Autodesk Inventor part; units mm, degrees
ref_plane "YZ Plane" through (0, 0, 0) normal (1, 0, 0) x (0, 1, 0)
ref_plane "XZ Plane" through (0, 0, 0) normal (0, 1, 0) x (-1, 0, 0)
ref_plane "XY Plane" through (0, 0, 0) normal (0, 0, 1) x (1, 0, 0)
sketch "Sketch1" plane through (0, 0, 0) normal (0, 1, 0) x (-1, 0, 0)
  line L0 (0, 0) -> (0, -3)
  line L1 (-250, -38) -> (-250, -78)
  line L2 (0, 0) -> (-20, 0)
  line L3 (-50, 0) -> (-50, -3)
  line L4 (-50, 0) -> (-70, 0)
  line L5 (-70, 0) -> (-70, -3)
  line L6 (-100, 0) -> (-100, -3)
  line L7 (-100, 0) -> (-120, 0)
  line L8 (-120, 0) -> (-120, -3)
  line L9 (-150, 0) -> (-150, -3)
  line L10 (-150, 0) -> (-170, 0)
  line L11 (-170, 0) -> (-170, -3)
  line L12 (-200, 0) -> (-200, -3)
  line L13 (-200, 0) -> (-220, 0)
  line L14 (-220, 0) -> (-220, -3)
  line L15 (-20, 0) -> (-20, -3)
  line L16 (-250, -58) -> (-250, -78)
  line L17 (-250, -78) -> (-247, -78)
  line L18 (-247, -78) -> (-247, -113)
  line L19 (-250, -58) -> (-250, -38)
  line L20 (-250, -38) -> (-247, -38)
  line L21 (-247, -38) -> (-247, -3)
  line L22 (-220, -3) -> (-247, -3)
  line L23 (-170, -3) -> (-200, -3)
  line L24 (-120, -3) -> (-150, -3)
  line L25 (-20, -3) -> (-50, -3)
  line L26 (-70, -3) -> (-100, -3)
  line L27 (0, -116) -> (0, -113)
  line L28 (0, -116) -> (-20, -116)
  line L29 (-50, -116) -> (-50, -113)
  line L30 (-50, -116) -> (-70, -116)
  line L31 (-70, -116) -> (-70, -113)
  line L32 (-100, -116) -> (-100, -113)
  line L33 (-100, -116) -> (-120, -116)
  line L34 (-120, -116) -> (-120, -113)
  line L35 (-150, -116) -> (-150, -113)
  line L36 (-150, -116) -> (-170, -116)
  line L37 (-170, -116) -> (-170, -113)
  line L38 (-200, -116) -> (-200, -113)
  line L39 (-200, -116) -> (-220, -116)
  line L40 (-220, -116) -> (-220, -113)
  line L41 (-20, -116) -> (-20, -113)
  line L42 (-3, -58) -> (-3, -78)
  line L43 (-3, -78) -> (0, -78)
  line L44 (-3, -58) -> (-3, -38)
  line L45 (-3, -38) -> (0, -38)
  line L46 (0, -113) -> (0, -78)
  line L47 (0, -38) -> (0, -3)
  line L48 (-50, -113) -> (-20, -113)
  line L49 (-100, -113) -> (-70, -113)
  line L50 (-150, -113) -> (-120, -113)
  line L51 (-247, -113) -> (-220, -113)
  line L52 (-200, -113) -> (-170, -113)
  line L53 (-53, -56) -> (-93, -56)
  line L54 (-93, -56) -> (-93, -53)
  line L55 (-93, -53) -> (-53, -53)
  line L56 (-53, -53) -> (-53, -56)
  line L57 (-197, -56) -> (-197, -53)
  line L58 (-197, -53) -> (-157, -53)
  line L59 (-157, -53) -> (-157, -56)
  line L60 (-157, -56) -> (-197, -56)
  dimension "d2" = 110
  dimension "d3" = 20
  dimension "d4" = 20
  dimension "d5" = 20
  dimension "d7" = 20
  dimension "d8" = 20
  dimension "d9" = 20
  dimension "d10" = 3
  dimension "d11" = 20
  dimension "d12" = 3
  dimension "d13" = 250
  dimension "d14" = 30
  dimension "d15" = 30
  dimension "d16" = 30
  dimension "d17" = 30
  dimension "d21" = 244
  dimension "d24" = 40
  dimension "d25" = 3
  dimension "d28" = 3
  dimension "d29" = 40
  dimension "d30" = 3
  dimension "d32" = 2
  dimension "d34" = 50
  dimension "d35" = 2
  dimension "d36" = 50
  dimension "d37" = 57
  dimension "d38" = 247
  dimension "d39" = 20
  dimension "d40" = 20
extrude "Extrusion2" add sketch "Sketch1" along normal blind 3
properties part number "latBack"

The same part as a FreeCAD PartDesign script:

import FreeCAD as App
import Part
import Sketcher
from FreeCAD import Vector

doc = App.newDocument("Part")
body = doc.addObject("PartDesign::Body", "Body")

sketch1 = body.newObject("Sketcher::SketchObject", "Sketch")
sketch1.AttachmentSupport = (doc.getObject("XZ_Plane"), [""])
sketch1.MapMode = "FlatFace"
sketch1.addGeometry(Part.LineSegment(Vector(0, -38, 0), Vector(0, 0, 0)), False)
sketch1.addGeometry(Part.LineSegment(Vector(0, 0, 0), Vector(20, 0, 0)), False)
sketch1.addGeometry(Part.LineSegment(Vector(20, 0, 0), Vector(20, -3, 0)), False)
sketch1.addGeometry(Part.LineSegment(Vector(20, -3, 0), Vector(50, -3, 0)), False)
sketch1.addGeometry(Part.LineSegment(Vector(50, -3, 0), Vector(50, 0, 0)), False)
sketch1.addGeometry(Part.LineSegment(Vector(50, 0, 0), Vector(70, 0, 0)), False)
sketch1.addGeometry(Part.LineSegment(Vector(70, 0, 0), Vector(70, -3, 0)), False)
sketch1.addGeometry(Part.LineSegment(Vector(70, -3, 0), Vector(100, -3, 0)), False)
sketch1.addGeometry(Part.LineSegment(Vector(100, -3, 0), Vector(100, 0, 0)), False)
sketch1.addGeometry(Part.LineSegment(Vector(100, 0, 0), Vector(120, 0, 0)), False)
sketch1.addGeometry(Part.LineSegment(Vector(120, 0, 0), Vector(120, -3, 0)), False)
sketch1.addGeometry(Part.LineSegment(Vector(120, -3, 0), Vector(150, -3, 0)), False)
sketch1.addGeometry(Part.LineSegment(Vector(150, -3, 0), Vector(150, 0, 0)), False)
sketch1.addGeometry(Part.LineSegment(Vector(150, 0, 0), Vector(170, 0, 0)), False)
sketch1.addGeometry(Part.LineSegment(Vector(170, 0, 0), Vector(170, -3, 0)), False)
sketch1.addGeometry(Part.LineSegment(Vector(170, -3, 0), Vector(200, -3, 0)), False)
sketch1.addGeometry(Part.LineSegment(Vector(200, -3, 0), Vector(200, 0, 0)), False)
sketch1.addGeometry(Part.LineSegment(Vector(200, 0, 0), Vector(220, 0, 0)), False)
sketch1.addGeometry(Part.LineSegment(Vector(220, 0, 0), Vector(220, -3, 0)), False)
sketch1.addGeometry(Part.LineSegment(Vector(220, -3, 0), Vector(247, -3, 0)), False)
sketch1.addGeometry(Part.LineSegment(Vector(247, -3, 0), Vector(247, -38, 0)), False)
sketch1.addGeometry(Part.LineSegment(Vector(247, -38, 0), Vector(250, -38, 0)), False)
sketch1.addGeometry(Part.LineSegment(Vector(250, -38, 0), Vector(250, -78, 0)), False)
sketch1.addGeometry(Part.LineSegment(Vector(250, -78, 0), Vector(247, -78, 0)), False)
sketch1.addGeometry(Part.LineSegment(Vector(247, -78, 0), Vector(247, -113, 0)), False)
sketch1.addGeometry(Part.LineSegment(Vector(247, -113, 0), Vector(220, -113, 0)), False)
sketch1.addGeometry(Part.LineSegment(Vector(220, -113, 0), Vector(220, -116, 0)), False)
sketch1.addGeometry(Part.LineSegment(Vector(220, -116, 0), Vector(200, -116, 0)), False)
sketch1.addGeometry(Part.LineSegment(Vector(200, -116, 0), Vector(200, -113, 0)), False)
sketch1.addGeometry(Part.LineSegment(Vector(200, -113, 0), Vector(170, -113, 0)), False)
sketch1.addGeometry(Part.LineSegment(Vector(170, -113, 0), Vector(170, -116, 0)), False)
sketch1.addGeometry(Part.LineSegment(Vector(170, -116, 0), Vector(150, -116, 0)), False)
sketch1.addGeometry(Part.LineSegment(Vector(150, -116, 0), Vector(150, -113, 0)), False)
sketch1.addGeometry(Part.LineSegment(Vector(150, -113, 0), Vector(120, -113, 0)), False)
sketch1.addGeometry(Part.LineSegment(Vector(120, -113, 0), Vector(120, -116, 0)), False)
sketch1.addGeometry(Part.LineSegment(Vector(120, -116, 0), Vector(100, -116, 0)), False)
sketch1.addGeometry(Part.LineSegment(Vector(100, -116, 0), Vector(100, -113, 0)), False)
sketch1.addGeometry(Part.LineSegment(Vector(100, -113, 0), Vector(70, -113, 0)), False)
sketch1.addGeometry(Part.LineSegment(Vector(70, -113, 0), Vector(70, -116, 0)), False)
sketch1.addGeometry(Part.LineSegment(Vector(70, -116, 0), Vector(50, -116, 0)), False)
sketch1.addGeometry(Part.LineSegment(Vector(50, -116, 0), Vector(50, -113, 0)), False)
sketch1.addGeometry(Part.LineSegment(Vector(50, -113, 0), Vector(20, -113, 0)), False)
sketch1.addGeometry(Part.LineSegment(Vector(20, -113, 0), Vector(20, -116, 0)), False)
sketch1.addGeometry(Part.LineSegment(Vector(20, -116, 0), Vector(0, -116, 0)), False)
sketch1.addGeometry(Part.LineSegment(Vector(0, -116, 0), Vector(0, -78, 0)), False)
sketch1.addGeometry(Part.LineSegment(Vector(0, -78, 0), Vector(3, -78, 0)), False)
sketch1.addGeometry(Part.LineSegment(Vector(3, -78, 0), Vector(3, -38, 0)), False)
sketch1.addGeometry(Part.LineSegment(Vector(3, -38, 0), Vector(0, -38, 0)), False)
sketch1.addGeometry(Part.LineSegment(Vector(157, -56, 0), Vector(197, -56, 0)), False)
sketch1.addGeometry(Part.LineSegment(Vector(197, -56, 0), Vector(197, -53, 0)), False)
sketch1.addGeometry(Part.LineSegment(Vector(197, -53, 0), Vector(157, -53, 0)), False)
sketch1.addGeometry(Part.LineSegment(Vector(157, -53, 0), Vector(157, -56, 0)), False)
sketch1.addGeometry(Part.LineSegment(Vector(53, -53, 0), Vector(53, -56, 0)), False)
sketch1.addGeometry(Part.LineSegment(Vector(53, -56, 0), Vector(93, -56, 0)), False)
sketch1.addGeometry(Part.LineSegment(Vector(93, -56, 0), Vector(93, -53, 0)), False)
sketch1.addGeometry(Part.LineSegment(Vector(93, -53, 0), Vector(53, -53, 0)), False)
sketch1.addConstraint(Sketcher.Constraint("Coincident", 0, 2, 1, 1))
sketch1.addConstraint(Sketcher.Constraint("Coincident", 1, 2, 2, 1))
sketch1.addConstraint(Sketcher.Constraint("Coincident", 2, 2, 3, 1))
sketch1.addConstraint(Sketcher.Constraint("Coincident", 3, 2, 4, 1))
sketch1.addConstraint(Sketcher.Constraint("Coincident", 4, 2, 5, 1))
sketch1.addConstraint(Sketcher.Constraint("Coincident", 5, 2, 6, 1))
sketch1.addConstraint(Sketcher.Constraint("Coincident", 6, 2, 7, 1))
sketch1.addConstraint(Sketcher.Constraint("Coincident", 7, 2, 8, 1))
sketch1.addConstraint(Sketcher.Constraint("Coincident", 8, 2, 9, 1))
sketch1.addConstraint(Sketcher.Constraint("Coincident", 9, 2, 10, 1))
sketch1.addConstraint(Sketcher.Constraint("Coincident", 10, 2, 11, 1))
sketch1.addConstraint(Sketcher.Constraint("Coincident", 11, 2, 12, 1))
sketch1.addConstraint(Sketcher.Constraint("Coincident", 12, 2, 13, 1))
sketch1.addConstraint(Sketcher.Constraint("Coincident", 13, 2, 14, 1))
sketch1.addConstraint(Sketcher.Constraint("Coincident", 14, 2, 15, 1))
sketch1.addConstraint(Sketcher.Constraint("Coincident", 15, 2, 16, 1))
sketch1.addConstraint(Sketcher.Constraint("Coincident", 16, 2, 17, 1))
sketch1.addConstraint(Sketcher.Constraint("Coincident", 17, 2, 18, 1))
sketch1.addConstraint(Sketcher.Constraint("Coincident", 18, 2, 19, 1))
sketch1.addConstraint(Sketcher.Constraint("Coincident", 19, 2, 20, 1))
sketch1.addConstraint(Sketcher.Constraint("Coincident", 20, 2, 21, 1))
sketch1.addConstraint(Sketcher.Constraint("Coincident", 21, 2, 22, 1))
sketch1.addConstraint(Sketcher.Constraint("Coincident", 22, 2, 23, 1))
sketch1.addConstraint(Sketcher.Constraint("Coincident", 23, 2, 24, 1))
sketch1.addConstraint(Sketcher.Constraint("Coincident", 24, 2, 25, 1))
sketch1.addConstraint(Sketcher.Constraint("Coincident", 25, 2, 26, 1))
sketch1.addConstraint(Sketcher.Constraint("Coincident", 26, 2, 27, 1))
sketch1.addConstraint(Sketcher.Constraint("Coincident", 27, 2, 28, 1))
sketch1.addConstraint(Sketcher.Constraint("Coincident", 28, 2, 29, 1))
sketch1.addConstraint(Sketcher.Constraint("Coincident", 29, 2, 30, 1))
sketch1.addConstraint(Sketcher.Constraint("Coincident", 30, 2, 31, 1))
sketch1.addConstraint(Sketcher.Constraint("Coincident", 31, 2, 32, 1))
sketch1.addConstraint(Sketcher.Constraint("Coincident", 32, 2, 33, 1))
sketch1.addConstraint(Sketcher.Constraint("Coincident", 33, 2, 34, 1))
sketch1.addConstraint(Sketcher.Constraint("Coincident", 34, 2, 35, 1))
sketch1.addConstraint(Sketcher.Constraint("Coincident", 35, 2, 36, 1))
sketch1.addConstraint(Sketcher.Constraint("Coincident", 36, 2, 37, 1))
sketch1.addConstraint(Sketcher.Constraint("Coincident", 37, 2, 38, 1))
sketch1.addConstraint(Sketcher.Constraint("Coincident", 38, 2, 39, 1))
sketch1.addConstraint(Sketcher.Constraint("Coincident", 39, 2, 40, 1))
sketch1.addConstraint(Sketcher.Constraint("Coincident", 40, 2, 41, 1))
sketch1.addConstraint(Sketcher.Constraint("Coincident", 41, 2, 42, 1))
sketch1.addConstraint(Sketcher.Constraint("Coincident", 42, 2, 43, 1))
sketch1.addConstraint(Sketcher.Constraint("Coincident", 43, 2, 44, 1))
sketch1.addConstraint(Sketcher.Constraint("Coincident", 44, 2, 45, 1))
sketch1.addConstraint(Sketcher.Constraint("Coincident", 45, 2, 46, 1))
sketch1.addConstraint(Sketcher.Constraint("Coincident", 46, 2, 47, 1))
sketch1.addConstraint(Sketcher.Constraint("Coincident", 47, 2, 0, 1))
sketch1.addConstraint(Sketcher.Constraint("Coincident", 48, 2, 49, 1))
sketch1.addConstraint(Sketcher.Constraint("Coincident", 49, 2, 50, 1))
sketch1.addConstraint(Sketcher.Constraint("Coincident", 50, 2, 51, 1))
sketch1.addConstraint(Sketcher.Constraint("Coincident", 51, 2, 48, 1))
sketch1.addConstraint(Sketcher.Constraint("Coincident", 52, 2, 53, 1))
sketch1.addConstraint(Sketcher.Constraint("Coincident", 53, 2, 54, 1))
sketch1.addConstraint(Sketcher.Constraint("Coincident", 54, 2, 55, 1))
sketch1.addConstraint(Sketcher.Constraint("Coincident", 55, 2, 52, 1))
sketch1.addConstraint(Sketcher.Constraint("Vertical", 0))
sketch1.addConstraint(Sketcher.Constraint("Horizontal", 1))
sketch1.addConstraint(Sketcher.Constraint("Vertical", 2))
sketch1.addConstraint(Sketcher.Constraint("Horizontal", 3))
sketch1.addConstraint(Sketcher.Constraint("Vertical", 4))
sketch1.addConstraint(Sketcher.Constraint("Horizontal", 5))
sketch1.addConstraint(Sketcher.Constraint("Vertical", 6))
sketch1.addConstraint(Sketcher.Constraint("Horizontal", 7))
sketch1.addConstraint(Sketcher.Constraint("Vertical", 8))
sketch1.addConstraint(Sketcher.Constraint("Horizontal", 9))
sketch1.addConstraint(Sketcher.Constraint("Vertical", 10))
sketch1.addConstraint(Sketcher.Constraint("Horizontal", 11))
sketch1.addConstraint(Sketcher.Constraint("Vertical", 12))
sketch1.addConstraint(Sketcher.Constraint("Horizontal", 13))
sketch1.addConstraint(Sketcher.Constraint("Vertical", 14))
sketch1.addConstraint(Sketcher.Constraint("Horizontal", 15))
sketch1.addConstraint(Sketcher.Constraint("Vertical", 16))
sketch1.addConstraint(Sketcher.Constraint("Horizontal", 17))
sketch1.addConstraint(Sketcher.Constraint("Vertical", 18))
sketch1.addConstraint(Sketcher.Constraint("Horizontal", 19))
sketch1.addConstraint(Sketcher.Constraint("Vertical", 20))
sketch1.addConstraint(Sketcher.Constraint("Horizontal", 21))
sketch1.addConstraint(Sketcher.Constraint("Vertical", 22))
sketch1.addConstraint(Sketcher.Constraint("Horizontal", 23))
sketch1.addConstraint(Sketcher.Constraint("Vertical", 24))
sketch1.addConstraint(Sketcher.Constraint("Horizontal", 25))
sketch1.addConstraint(Sketcher.Constraint("Vertical", 26))
sketch1.addConstraint(Sketcher.Constraint("Horizontal", 27))
sketch1.addConstraint(Sketcher.Constraint("Vertical", 28))
sketch1.addConstraint(Sketcher.Constraint("Horizontal", 29))
sketch1.addConstraint(Sketcher.Constraint("Vertical", 30))
sketch1.addConstraint(Sketcher.Constraint("Horizontal", 31))
sketch1.addConstraint(Sketcher.Constraint("Vertical", 32))
sketch1.addConstraint(Sketcher.Constraint("Horizontal", 33))
sketch1.addConstraint(Sketcher.Constraint("Vertical", 34))
sketch1.addConstraint(Sketcher.Constraint("Horizontal", 35))
sketch1.addConstraint(Sketcher.Constraint("Vertical", 36))
sketch1.addConstraint(Sketcher.Constraint("Horizontal", 37))
sketch1.addConstraint(Sketcher.Constraint("Vertical", 38))
sketch1.addConstraint(Sketcher.Constraint("Horizontal", 39))
sketch1.addConstraint(Sketcher.Constraint("Vertical", 40))
sketch1.addConstraint(Sketcher.Constraint("Horizontal", 41))
sketch1.addConstraint(Sketcher.Constraint("Vertical", 42))
sketch1.addConstraint(Sketcher.Constraint("Horizontal", 43))
sketch1.addConstraint(Sketcher.Constraint("Vertical", 44))
sketch1.addConstraint(Sketcher.Constraint("Horizontal", 45))
sketch1.addConstraint(Sketcher.Constraint("Vertical", 46))
sketch1.addConstraint(Sketcher.Constraint("Horizontal", 47))
sketch1.addConstraint(Sketcher.Constraint("Horizontal", 48))
sketch1.addConstraint(Sketcher.Constraint("Vertical", 49))
sketch1.addConstraint(Sketcher.Constraint("Horizontal", 50))
sketch1.addConstraint(Sketcher.Constraint("Vertical", 51))
sketch1.addConstraint(Sketcher.Constraint("Vertical", 52))
sketch1.addConstraint(Sketcher.Constraint("Horizontal", 53))
sketch1.addConstraint(Sketcher.Constraint("Vertical", 54))
sketch1.addConstraint(Sketcher.Constraint("Horizontal", 55))
sketch1.addConstraint(Sketcher.Constraint("Coincident", 0, 2, -1, 1))
sketch1.addConstraint(Sketcher.Constraint("PointOnObject", 4, 2, -1))
sketch1.addConstraint(Sketcher.Constraint("PointOnObject", 8, 2, -1))
sketch1.addConstraint(Sketcher.Constraint("PointOnObject", 12, 2, -1))
sketch1.addConstraint(Sketcher.Constraint("PointOnObject", 16, 2, -1))
sketch1.addConstraint(Sketcher.Constraint("PointOnObject", 43, 2, -2))
sketch1.addConstraint(Sketcher.Constraint("Horizontal", 3, 2, 6, 2))
sketch1.addConstraint(Sketcher.Constraint("Horizontal", 7, 2, 10, 2))
sketch1.addConstraint(Sketcher.Constraint("Horizontal", 11, 2, 14, 2))
sketch1.addConstraint(Sketcher.Constraint("Horizontal", 15, 2, 18, 2))
sketch1.addConstraint(Sketcher.Constraint("Horizontal", 25, 2, 28, 2))
sketch1.addConstraint(Sketcher.Constraint("Horizontal", 27, 2, 30, 2))
sketch1.addConstraint(Sketcher.Constraint("Horizontal", 29, 2, 32, 2))
sketch1.addConstraint(Sketcher.Constraint("Horizontal", 31, 2, 34, 2))
sketch1.addConstraint(Sketcher.Constraint("Horizontal", 33, 2, 36, 2))
sketch1.addConstraint(Sketcher.Constraint("Horizontal", 35, 2, 38, 2))
sketch1.addConstraint(Sketcher.Constraint("Horizontal", 37, 2, 40, 2))
sketch1.addConstraint(Sketcher.Constraint("Horizontal", 39, 2, 42, 2))
sketch1.addConstraint(Sketcher.Constraint("Horizontal", 23, 2, 44, 2))
sketch1.addConstraint(Sketcher.Constraint("Horizontal", 21, 2, 46, 2))
sketch1.addConstraint(Sketcher.Constraint("Horizontal", 51, 2, 52, 2))
sketch1.addConstraint(Sketcher.Constraint("Horizontal", 50, 2, 54, 2))
sketch1.addConstraint(Sketcher.Constraint("Vertical", 20, 2, 23, 2))
sketch1.addConstraint(Sketcher.Constraint("Vertical", 18, 2, 25, 2))
sketch1.addConstraint(Sketcher.Constraint("Vertical", 16, 2, 27, 2))
sketch1.addConstraint(Sketcher.Constraint("Vertical", 14, 2, 29, 2))
sketch1.addConstraint(Sketcher.Constraint("Vertical", 12, 2, 31, 2))
sketch1.addConstraint(Sketcher.Constraint("Vertical", 10, 2, 33, 2))
sketch1.addConstraint(Sketcher.Constraint("Vertical", 8, 2, 35, 2))
sketch1.addConstraint(Sketcher.Constraint("Vertical", 6, 2, 37, 2))
sketch1.addConstraint(Sketcher.Constraint("Vertical", 4, 2, 39, 2))
sketch1.addConstraint(Sketcher.Constraint("Vertical", 2, 2, 41, 2))
sketch1.addConstraint(Sketcher.Constraint("Equal", 1, 5))
sketch1.addConstraint(Sketcher.Constraint("Equal", 3, 7))
sketch1.addConstraint(Sketcher.Constraint("Equal", 5, 9))
sketch1.addConstraint(Sketcher.Constraint("Equal", 7, 11))
sketch1.addConstraint(Sketcher.Constraint("Equal", 9, 13))
sketch1.addConstraint(Sketcher.Constraint("Equal", 11, 15))
sketch1.addConstraint(Sketcher.Constraint("Equal", 13, 17))
sketch1.addConstraint(Sketcher.Constraint("Equal", 23, 45))
sketch1.addConstraint(Sketcher.Constraint("Equal", 50, 53))
sketch1.addConstraint(Sketcher.Constraint("Equal", 47, 2))
sketch1.addConstraint(Sketcher.Constraint("Equal", 55, 22))
sketch1.addConstraint(Sketcher.Constraint("Equal", 20, 24))
sketch1.addConstraint(Sketcher.Constraint("Equal", 18, 26))
sketch1.addConstraint(Sketcher.Constraint("Equal", 42, 49))
sketch1.addConstraint(Sketcher.Constraint("DistanceX", 1, 1, 1, 2, 20.0))
sketch1.addConstraint(Sketcher.Constraint("DistanceX", 3, 1, 3, 2, 30.0))
sketch1.addConstraint(Sketcher.Constraint("DistanceX", 21, 1, 21, 2, 3.0))
sketch1.addConstraint(Sketcher.Constraint("DistanceX", 48, 1, 48, 2, 40.0))
sketch1.addConstraint(Sketcher.Constraint("DistanceX", -1, 1, 19, 2, 247.0))
sketch1.addConstraint(Sketcher.Constraint("DistanceY", 24, 2, 19, 2, 110.0))
sketch1.addConstraint(Sketcher.Constraint("DistanceX", 48, 2, 15, 2, 3.0))
sketch1.addConstraint(Sketcher.Constraint("DistanceY", 49, 2, 15, 2, 50.0))
sketch1.addConstraint(Sketcher.Constraint("DistanceX", 3, 2, 52, 2, 3.0))
pad1 = body.newObject("PartDesign::Pad", "Pad")
pad1.Profile = sketch1
pad1.Length = 3
pad1.Reversed = True

doc.recompute()
